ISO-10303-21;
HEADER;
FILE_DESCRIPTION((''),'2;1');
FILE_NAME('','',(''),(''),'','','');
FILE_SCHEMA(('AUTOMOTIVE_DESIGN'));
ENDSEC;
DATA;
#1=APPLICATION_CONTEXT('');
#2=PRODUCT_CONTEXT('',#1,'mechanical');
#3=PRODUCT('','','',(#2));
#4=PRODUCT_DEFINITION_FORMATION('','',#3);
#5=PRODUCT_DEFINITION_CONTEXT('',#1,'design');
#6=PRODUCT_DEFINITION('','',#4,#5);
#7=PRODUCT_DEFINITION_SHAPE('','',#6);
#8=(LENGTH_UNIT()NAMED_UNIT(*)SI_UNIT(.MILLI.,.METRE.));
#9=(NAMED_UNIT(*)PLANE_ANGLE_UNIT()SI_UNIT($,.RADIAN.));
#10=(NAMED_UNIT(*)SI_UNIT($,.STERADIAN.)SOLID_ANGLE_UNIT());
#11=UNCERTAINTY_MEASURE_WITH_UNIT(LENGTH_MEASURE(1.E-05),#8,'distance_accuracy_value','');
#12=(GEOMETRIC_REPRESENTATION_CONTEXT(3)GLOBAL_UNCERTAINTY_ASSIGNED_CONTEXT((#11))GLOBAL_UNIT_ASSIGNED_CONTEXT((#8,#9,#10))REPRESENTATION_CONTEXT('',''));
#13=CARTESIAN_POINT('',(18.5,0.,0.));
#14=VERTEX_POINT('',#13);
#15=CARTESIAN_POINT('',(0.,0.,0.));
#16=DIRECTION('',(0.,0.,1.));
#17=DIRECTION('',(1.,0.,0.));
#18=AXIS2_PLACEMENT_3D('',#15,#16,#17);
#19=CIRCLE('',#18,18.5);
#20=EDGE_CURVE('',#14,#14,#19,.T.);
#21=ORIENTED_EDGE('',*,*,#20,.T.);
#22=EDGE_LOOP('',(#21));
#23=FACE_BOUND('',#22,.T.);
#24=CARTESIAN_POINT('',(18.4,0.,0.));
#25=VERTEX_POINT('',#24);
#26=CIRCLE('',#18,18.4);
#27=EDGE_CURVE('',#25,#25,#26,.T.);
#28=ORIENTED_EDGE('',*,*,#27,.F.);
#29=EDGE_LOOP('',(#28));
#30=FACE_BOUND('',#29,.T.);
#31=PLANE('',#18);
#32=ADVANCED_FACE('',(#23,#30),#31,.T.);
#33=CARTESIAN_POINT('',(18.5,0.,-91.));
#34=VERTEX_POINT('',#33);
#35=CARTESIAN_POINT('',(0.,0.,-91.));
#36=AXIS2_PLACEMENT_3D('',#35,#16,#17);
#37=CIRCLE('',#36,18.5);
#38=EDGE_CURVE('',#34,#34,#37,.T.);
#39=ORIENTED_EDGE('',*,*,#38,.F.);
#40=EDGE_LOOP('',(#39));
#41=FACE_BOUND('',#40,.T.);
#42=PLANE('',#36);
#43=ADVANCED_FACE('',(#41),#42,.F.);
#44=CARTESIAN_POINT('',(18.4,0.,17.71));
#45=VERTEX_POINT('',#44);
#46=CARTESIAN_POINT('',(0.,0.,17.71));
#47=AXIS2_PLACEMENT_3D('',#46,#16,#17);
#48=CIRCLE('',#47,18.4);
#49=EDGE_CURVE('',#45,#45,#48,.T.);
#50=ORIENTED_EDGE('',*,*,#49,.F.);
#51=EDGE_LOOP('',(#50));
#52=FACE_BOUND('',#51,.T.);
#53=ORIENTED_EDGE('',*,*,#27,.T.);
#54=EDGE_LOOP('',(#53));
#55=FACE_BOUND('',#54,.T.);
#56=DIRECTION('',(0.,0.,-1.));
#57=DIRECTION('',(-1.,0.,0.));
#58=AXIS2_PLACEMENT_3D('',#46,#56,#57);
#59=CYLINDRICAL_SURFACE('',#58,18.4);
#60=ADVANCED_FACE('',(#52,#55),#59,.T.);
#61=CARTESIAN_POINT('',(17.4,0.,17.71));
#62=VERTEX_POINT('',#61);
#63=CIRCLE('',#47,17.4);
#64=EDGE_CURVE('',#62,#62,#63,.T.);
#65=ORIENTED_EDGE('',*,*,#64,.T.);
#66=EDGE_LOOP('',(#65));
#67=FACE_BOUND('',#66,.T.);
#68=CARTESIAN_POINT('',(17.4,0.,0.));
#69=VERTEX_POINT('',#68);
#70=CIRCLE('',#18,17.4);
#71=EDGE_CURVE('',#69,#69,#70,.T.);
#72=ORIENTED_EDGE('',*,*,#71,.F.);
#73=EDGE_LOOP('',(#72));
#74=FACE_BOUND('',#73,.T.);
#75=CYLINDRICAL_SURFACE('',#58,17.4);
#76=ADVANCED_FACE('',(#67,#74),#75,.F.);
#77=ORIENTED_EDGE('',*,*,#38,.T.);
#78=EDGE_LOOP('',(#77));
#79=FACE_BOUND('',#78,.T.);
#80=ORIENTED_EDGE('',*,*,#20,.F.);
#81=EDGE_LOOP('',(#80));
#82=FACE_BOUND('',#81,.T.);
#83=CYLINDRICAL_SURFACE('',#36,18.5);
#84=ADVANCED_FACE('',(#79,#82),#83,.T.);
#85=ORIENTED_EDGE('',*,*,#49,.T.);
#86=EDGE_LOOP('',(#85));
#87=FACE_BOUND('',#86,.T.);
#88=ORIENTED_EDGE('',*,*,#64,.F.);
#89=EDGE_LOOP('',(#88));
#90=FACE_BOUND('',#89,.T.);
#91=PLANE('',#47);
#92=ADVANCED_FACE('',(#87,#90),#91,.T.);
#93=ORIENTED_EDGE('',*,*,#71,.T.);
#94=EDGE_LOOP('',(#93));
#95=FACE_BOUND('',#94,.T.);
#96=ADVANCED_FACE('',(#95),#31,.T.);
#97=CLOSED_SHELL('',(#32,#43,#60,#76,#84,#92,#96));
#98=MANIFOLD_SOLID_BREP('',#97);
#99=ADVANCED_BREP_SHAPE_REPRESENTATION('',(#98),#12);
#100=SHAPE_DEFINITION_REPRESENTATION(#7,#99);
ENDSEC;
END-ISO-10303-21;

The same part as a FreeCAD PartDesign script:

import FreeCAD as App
import Part
import Sketcher

doc = App.newDocument("Part")
body = doc.addObject("PartDesign::Body", "Body")

# Sketch on XY plane
sketch1 = body.newObject("Sketcher::SketchObject", "Sketch")
sketch1.AttachmentSupport = (doc.getObject("XY_Plane"), [""])
sketch1.MapMode = "FlatFace"
sketch1.addGeometry([
    Part.Circle(App.Vector(0, 0, 0), App.Vector(0, 0, 1), 18),
    Part.Circle(App.Vector(0, 0, 0), App.Vector(0, 0, 1), 17),
], False)
sketch1.addConstraint([
    Sketcher.Constraint("Coincident", 0, 3, -1, 1),
    Sketcher.Constraint("Coincident", 1, 3, -1, 1),
    Sketcher.Constraint("Diameter", 0, 36.8),
    Sketcher.Constraint("Diameter", 1, 34.8),
])
pad1 = body.newObject("PartDesign::Pad", "Pad")
pad1.Profile = sketch1
pad1.Length = 17.71

# Sketch on XY plane
sketch2 = body.newObject("Sketcher::SketchObject", "Sketch001")
sketch2.AttachmentSupport = (doc.getObject("XY_Plane"), [""])
sketch2.MapMode = "FlatFace"
sketch2.AttachmentOffset = App.Placement(App.Vector(0, 0, -91), App.Rotation())
sketch2.addGeometry(Part.Circle(App.Vector(0, 0, 0), App.Vector(0, 0, 1), 18), False)
sketch2.addConstraint([
    Sketcher.Constraint("Coincident", 0, 3, -1, 1),
    Sketcher.Constraint("Diameter", 0, 37.0),
])
pad2 = body.newObject("PartDesign::Pad", "Pad001")
pad2.Profile = sketch2
pad2.Length = 91

doc.recompute()
